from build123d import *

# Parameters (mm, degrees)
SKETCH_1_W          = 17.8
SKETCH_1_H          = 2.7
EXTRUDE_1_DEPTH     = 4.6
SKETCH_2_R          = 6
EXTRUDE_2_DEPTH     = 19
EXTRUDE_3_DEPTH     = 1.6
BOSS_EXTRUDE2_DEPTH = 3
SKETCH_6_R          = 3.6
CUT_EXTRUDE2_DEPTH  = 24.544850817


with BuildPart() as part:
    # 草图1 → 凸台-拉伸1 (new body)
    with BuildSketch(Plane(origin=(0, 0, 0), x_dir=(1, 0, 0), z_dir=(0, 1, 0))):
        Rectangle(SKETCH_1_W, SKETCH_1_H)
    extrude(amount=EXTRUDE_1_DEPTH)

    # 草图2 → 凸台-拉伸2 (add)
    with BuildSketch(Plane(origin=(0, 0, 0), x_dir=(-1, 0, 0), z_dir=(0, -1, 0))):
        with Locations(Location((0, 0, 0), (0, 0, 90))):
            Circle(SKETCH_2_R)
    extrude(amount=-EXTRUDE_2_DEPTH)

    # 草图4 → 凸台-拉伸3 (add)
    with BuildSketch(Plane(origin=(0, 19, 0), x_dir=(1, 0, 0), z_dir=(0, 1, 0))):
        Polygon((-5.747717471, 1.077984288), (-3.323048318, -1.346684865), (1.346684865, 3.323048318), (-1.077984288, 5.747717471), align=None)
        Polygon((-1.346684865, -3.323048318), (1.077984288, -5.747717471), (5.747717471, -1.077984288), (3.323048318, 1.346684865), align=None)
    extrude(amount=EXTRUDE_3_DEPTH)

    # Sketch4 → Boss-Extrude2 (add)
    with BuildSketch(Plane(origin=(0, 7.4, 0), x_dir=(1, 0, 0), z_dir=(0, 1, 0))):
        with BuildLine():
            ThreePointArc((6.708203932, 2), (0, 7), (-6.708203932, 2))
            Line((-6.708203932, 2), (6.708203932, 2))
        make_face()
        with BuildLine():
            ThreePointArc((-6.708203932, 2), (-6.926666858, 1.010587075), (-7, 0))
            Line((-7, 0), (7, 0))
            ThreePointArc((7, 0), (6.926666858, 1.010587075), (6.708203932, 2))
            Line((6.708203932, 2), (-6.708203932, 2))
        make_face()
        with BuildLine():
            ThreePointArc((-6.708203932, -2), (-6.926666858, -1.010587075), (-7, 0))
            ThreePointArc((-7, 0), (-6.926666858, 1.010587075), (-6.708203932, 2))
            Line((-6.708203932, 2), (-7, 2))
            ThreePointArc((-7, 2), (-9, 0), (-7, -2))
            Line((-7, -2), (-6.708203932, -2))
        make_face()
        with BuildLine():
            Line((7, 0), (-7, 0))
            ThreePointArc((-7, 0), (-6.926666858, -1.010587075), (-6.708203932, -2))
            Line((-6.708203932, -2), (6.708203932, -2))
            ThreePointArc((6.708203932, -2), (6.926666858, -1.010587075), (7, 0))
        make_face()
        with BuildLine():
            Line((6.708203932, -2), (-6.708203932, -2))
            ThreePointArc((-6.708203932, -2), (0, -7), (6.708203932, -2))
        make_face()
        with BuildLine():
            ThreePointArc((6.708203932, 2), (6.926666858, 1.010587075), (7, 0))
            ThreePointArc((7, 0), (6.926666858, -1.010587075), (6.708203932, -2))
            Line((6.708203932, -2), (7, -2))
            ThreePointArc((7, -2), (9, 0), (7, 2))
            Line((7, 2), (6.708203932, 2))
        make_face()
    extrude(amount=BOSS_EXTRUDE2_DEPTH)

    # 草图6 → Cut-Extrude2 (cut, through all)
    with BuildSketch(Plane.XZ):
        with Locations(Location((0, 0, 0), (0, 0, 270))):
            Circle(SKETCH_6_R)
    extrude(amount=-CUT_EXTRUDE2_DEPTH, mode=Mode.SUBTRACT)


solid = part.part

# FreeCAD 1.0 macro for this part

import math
import FreeCAD as App
import Part
import Sketcher

V = App.Vector
Q = App.Units.Quantity

doc = App.newDocument("Part")
body = doc.addObject("PartDesign::Body", "Body")

# Sketch on XZ plane
sketch1 = doc.addObject("Sketcher::SketchObject", "Sketch")
body.addObject(sketch1)
sketch1.AttachmentSupport = (doc.XZ_Plane, [""])
sketch1.MapMode = "FlatFace"
sketch1.addGeometry([
    Part.LineSegment(V(-8.9, -1.4, 0), V(-8.9, 1.4, 0)),
    Part.LineSegment(V(-8.9, 1.4, 0), V(8.9, 1.4, 0)),
    Part.LineSegment(V(8.9, 1.4, 0), V(8.9, -1.4, 0)),
    Part.LineSegment(V(8.9, -1.4, 0), V(-8.9, -1.4, 0)),
], False)
sketch1.addConstraint([
    Sketcher.Constraint("Coincident", 0, 2, 1, 1),
    Sketcher.Constraint("Coincident", 1, 2, 2, 1),
    Sketcher.Constraint("Coincident", 2, 2, 3, 1),
    Sketcher.Constraint("Coincident", 3, 2, 0, 1),
    Sketcher.Constraint("Vertical", 0),
    Sketcher.Constraint("Horizontal", 1),
    Sketcher.Constraint("Vertical", 2),
    Sketcher.Constraint("Horizontal", 3),
    Sketcher.Constraint("Symmetric", 0, 2, 2, 2, -1, 1),
    Sketcher.Constraint("DistanceX", 1, 1, 1, 2, 17.8),
    Sketcher.Constraint("DistanceY", 0, 1, 0, 2, 2.7),
])
pad1 = doc.addObject("PartDesign::Pad", "Pad")
body.addObject(pad1)
pad1.Profile = sketch1
pad1.Length = 4.6
pad1.Reversed = True

# Sketch on XZ plane
sketch2 = doc.addObject("Sketcher::SketchObject", "Sketch001")
body.addObject(sketch2)
sketch2.AttachmentSupport = (doc.XZ_Plane, [""])
sketch2.MapMode = "FlatFace"
sketch2.addGeometry(Part.Circle(V(0, 0, 0), V(0, 0, 1), 6), False)
sketch2.addConstraint([
    Sketcher.Constraint("Coincident", 0, 3, -1, 1),
    Sketcher.Constraint("Diameter", 0, 12.0),
])
pad2 = doc.addObject("PartDesign::Pad", "Pad001")
body.addObject(pad2)
pad2.Profile = sketch2
pad2.Length = 19
pad2.Reversed = True

# Sketch on XZ plane
sketch3 = doc.addObject("Sketcher::SketchObject", "Sketch002")
body.addObject(sketch3)
sketch3.AttachmentSupport = (doc.XZ_Plane, [""])
sketch3.MapMode = "FlatFace"
sketch3.AttachmentOffset = App.Placement(V(0, 0, -19), App.Rotation())
sketch3.addGeometry([
    Part.LineSegment(V(-5.7, -1.1, 0), V(-3.3, 1.3, 0)),  # 0
    Part.LineSegment(V(-3.3, 1.3, 0), V(1.3, -3.3, 0)),  # 1
    Part.LineSegment(V(1.3, -3.3, 0), V(-1.1, -5.7, 0)),  # 2
    Part.LineSegment(V(-1.1, -5.7, 0), V(-5.7, -1.1, 0)),  # 3
    Part.LineSegment(V(-1.3, 3.3, 0), V(1.1, 5.7, 0)),  # 4
    Part.LineSegment(V(1.1, 5.7, 0), V(5.7, 1.1, 0)),  # 5
    Part.LineSegment(V(5.7, 1.1, 0), V(3.3, -1.3, 0)),  # 6
    Part.LineSegment(V(3.3, -1.3, 0), V(-1.3, 3.3, 0)),  # 7
], False)
sketch3.addConstraint([
    Sketcher.Constraint("Coincident", 0, 2, 1, 1),
    Sketcher.Constraint("Coincident", 1, 2, 2, 1),
    Sketcher.Constraint("Coincident", 2, 2, 3, 1),
    Sketcher.Constraint("Coincident", 3, 2, 0, 1),
    Sketcher.Constraint("Coincident", 4, 2, 5, 1),
    Sketcher.Constraint("Coincident", 5, 2, 6, 1),
    Sketcher.Constraint("Coincident", 6, 2, 7, 1),
    Sketcher.Constraint("Coincident", 7, 2, 4, 1),
    Sketcher.Constraint("Symmetric", 2, 2, 4, 2, -1, 1),
    Sketcher.Constraint("Symmetric", 3, 2, 5, 2, -1, 1),
    Sketcher.Constraint("Symmetric", 0, 2, 6, 2, -1, 1),
    Sketcher.Constraint("Symmetric", 1, 2, 7, 2, -1, 1),
    Sketcher.Constraint("Perpendicular", 0, 1),
    Sketcher.Constraint("Perpendicular", 1, 2),
    Sketcher.Constraint("Perpendicular", 2, 3),
    Sketcher.Constraint("Angle", 0, Q("45 deg")),
    Sketcher.Constraint("Distance", 0, 3.429),
    Sketcher.Constraint("Distance", 1, 6.604),
    Sketcher.Constraint("DistanceX", 4, 2, 1, 2, 0.268701),
    Sketcher.Constraint("DistanceY", 3, 2, 4, 2, 6.825702),
])
pad3 = doc.addObject("PartDesign::Pad", "Pad002")
body.addObject(pad3)
pad3.Profile = sketch3
pad3.Length = 1.6
pad3.Reversed = True

# Sketch on XZ plane
sketch4 = doc.addObject("Sketcher::SketchObject", "Sketch003")
body.addObject(sketch4)
sketch4.AttachmentSupport = (doc.XZ_Plane, [""])
sketch4.MapMode = "FlatFace"
sketch4.AttachmentOffset = App.Placement(V(0, 0, -7.4), App.Rotation())
sketch4.addGeometry([
    Part.ArcOfCircle(Part.Circle(V(0, 0, 0), V(0, 0, 1), 7), math.radians(-163), math.radians(-17)),  # 0
    Part.LineSegment(V(-6.71, -2, 0), V(-7, -2, 0)),  # 1
    Part.ArcOfCircle(Part.Circle(V(-7, 0, 0), V(0, 0, 1), 2), math.radians(90), math.radians(270)),  # 2
    Part.LineSegment(V(-7, 2, 0), V(-6.71, 2, 0)),  # 3
    Part.ArcOfCircle(Part.Circle(V(0, 0, 0), V(0, 0, 1), 7), math.radians(17), math.radians(163)),  # 4
    Part.LineSegment(V(6.71, 2, 0), V(7, 2, 0)),  # 5
    Part.ArcOfCircle(Part.Circle(V(7, 0, 0), V(0, 0, 1), 2), math.radians(-90), math.radians(90)),  # 6
    Part.LineSegment(V(7, -2, 0), V(6.71, -2, 0)),  # 7
], False)
sketch4.addConstraint([
    Sketcher.Constraint("Coincident", 0, 1, 1, 1),
    Sketcher.Constraint("Tangent", 1, 2, 2, 2),
    Sketcher.Constraint("Tangent", 2, 1, 3, 1),
    Sketcher.Constraint("Coincident", 3, 2, 4, 2),
    Sketcher.Constraint("Coincident", 4, 1, 5, 1),
    Sketcher.Constraint("Tangent", 5, 2, 6, 2),
    Sketcher.Constraint("Tangent", 6, 1, 7, 1),
    Sketcher.Constraint("Coincident", 7, 2, 0, 2),
    Sketcher.Constraint("Horizontal", 1),
    Sketcher.Constraint("Horizontal", 3),
    Sketcher.Constraint("Horizontal", 5),
    Sketcher.Constraint("Horizontal", 7),
    Sketcher.Constraint("Coincident", 0, 3, -1, 1),
    Sketcher.Constraint("Coincident", 4, 3, -1, 1),
    Sketcher.Constraint("Equal", 0, 4),
    Sketcher.Constraint("Equal", 2, 6),
    Sketcher.Constraint("Symmetric", 2, 3, 6, 3, -1, 1),
    Sketcher.Constraint("PointOnObject", 2, 3, -1),
    Sketcher.Constraint("Radius", 0, 7.0),
    Sketcher.Constraint("Radius", 2, 2.0),
    Sketcher.Constraint("DistanceX", 2, 3, -1, 1, 7.0),
])
pad4 = doc.addObject("PartDesign::Pad", "Pad003")
body.addObject(pad4)
pad4.Profile = sketch4
pad4.Length = 3
pad4.Reversed = True

# Sketch on XZ plane
sketch5 = doc.addObject("Sketcher::SketchObject", "Sketch004")
body.addObject(sketch5)
sketch5.AttachmentSupport = (doc.XZ_Plane, [""])
sketch5.MapMode = "FlatFace"
sketch5.addGeometry(Part.Circle(V(0, 0, 0), V(0, 0, 1), 3.6), False)
sketch5.addConstraint([
    Sketcher.Constraint("Coincident", 0, 3, -1, 1),
    Sketcher.Constraint("Diameter", 0, 7.2),
])
pocket1 = doc.addObject("PartDesign::Pocket", "Pocket")
body.addObject(pocket1)
pocket1.Profile = sketch5
pocket1.Type = "ThroughAll"

doc.recompute()
